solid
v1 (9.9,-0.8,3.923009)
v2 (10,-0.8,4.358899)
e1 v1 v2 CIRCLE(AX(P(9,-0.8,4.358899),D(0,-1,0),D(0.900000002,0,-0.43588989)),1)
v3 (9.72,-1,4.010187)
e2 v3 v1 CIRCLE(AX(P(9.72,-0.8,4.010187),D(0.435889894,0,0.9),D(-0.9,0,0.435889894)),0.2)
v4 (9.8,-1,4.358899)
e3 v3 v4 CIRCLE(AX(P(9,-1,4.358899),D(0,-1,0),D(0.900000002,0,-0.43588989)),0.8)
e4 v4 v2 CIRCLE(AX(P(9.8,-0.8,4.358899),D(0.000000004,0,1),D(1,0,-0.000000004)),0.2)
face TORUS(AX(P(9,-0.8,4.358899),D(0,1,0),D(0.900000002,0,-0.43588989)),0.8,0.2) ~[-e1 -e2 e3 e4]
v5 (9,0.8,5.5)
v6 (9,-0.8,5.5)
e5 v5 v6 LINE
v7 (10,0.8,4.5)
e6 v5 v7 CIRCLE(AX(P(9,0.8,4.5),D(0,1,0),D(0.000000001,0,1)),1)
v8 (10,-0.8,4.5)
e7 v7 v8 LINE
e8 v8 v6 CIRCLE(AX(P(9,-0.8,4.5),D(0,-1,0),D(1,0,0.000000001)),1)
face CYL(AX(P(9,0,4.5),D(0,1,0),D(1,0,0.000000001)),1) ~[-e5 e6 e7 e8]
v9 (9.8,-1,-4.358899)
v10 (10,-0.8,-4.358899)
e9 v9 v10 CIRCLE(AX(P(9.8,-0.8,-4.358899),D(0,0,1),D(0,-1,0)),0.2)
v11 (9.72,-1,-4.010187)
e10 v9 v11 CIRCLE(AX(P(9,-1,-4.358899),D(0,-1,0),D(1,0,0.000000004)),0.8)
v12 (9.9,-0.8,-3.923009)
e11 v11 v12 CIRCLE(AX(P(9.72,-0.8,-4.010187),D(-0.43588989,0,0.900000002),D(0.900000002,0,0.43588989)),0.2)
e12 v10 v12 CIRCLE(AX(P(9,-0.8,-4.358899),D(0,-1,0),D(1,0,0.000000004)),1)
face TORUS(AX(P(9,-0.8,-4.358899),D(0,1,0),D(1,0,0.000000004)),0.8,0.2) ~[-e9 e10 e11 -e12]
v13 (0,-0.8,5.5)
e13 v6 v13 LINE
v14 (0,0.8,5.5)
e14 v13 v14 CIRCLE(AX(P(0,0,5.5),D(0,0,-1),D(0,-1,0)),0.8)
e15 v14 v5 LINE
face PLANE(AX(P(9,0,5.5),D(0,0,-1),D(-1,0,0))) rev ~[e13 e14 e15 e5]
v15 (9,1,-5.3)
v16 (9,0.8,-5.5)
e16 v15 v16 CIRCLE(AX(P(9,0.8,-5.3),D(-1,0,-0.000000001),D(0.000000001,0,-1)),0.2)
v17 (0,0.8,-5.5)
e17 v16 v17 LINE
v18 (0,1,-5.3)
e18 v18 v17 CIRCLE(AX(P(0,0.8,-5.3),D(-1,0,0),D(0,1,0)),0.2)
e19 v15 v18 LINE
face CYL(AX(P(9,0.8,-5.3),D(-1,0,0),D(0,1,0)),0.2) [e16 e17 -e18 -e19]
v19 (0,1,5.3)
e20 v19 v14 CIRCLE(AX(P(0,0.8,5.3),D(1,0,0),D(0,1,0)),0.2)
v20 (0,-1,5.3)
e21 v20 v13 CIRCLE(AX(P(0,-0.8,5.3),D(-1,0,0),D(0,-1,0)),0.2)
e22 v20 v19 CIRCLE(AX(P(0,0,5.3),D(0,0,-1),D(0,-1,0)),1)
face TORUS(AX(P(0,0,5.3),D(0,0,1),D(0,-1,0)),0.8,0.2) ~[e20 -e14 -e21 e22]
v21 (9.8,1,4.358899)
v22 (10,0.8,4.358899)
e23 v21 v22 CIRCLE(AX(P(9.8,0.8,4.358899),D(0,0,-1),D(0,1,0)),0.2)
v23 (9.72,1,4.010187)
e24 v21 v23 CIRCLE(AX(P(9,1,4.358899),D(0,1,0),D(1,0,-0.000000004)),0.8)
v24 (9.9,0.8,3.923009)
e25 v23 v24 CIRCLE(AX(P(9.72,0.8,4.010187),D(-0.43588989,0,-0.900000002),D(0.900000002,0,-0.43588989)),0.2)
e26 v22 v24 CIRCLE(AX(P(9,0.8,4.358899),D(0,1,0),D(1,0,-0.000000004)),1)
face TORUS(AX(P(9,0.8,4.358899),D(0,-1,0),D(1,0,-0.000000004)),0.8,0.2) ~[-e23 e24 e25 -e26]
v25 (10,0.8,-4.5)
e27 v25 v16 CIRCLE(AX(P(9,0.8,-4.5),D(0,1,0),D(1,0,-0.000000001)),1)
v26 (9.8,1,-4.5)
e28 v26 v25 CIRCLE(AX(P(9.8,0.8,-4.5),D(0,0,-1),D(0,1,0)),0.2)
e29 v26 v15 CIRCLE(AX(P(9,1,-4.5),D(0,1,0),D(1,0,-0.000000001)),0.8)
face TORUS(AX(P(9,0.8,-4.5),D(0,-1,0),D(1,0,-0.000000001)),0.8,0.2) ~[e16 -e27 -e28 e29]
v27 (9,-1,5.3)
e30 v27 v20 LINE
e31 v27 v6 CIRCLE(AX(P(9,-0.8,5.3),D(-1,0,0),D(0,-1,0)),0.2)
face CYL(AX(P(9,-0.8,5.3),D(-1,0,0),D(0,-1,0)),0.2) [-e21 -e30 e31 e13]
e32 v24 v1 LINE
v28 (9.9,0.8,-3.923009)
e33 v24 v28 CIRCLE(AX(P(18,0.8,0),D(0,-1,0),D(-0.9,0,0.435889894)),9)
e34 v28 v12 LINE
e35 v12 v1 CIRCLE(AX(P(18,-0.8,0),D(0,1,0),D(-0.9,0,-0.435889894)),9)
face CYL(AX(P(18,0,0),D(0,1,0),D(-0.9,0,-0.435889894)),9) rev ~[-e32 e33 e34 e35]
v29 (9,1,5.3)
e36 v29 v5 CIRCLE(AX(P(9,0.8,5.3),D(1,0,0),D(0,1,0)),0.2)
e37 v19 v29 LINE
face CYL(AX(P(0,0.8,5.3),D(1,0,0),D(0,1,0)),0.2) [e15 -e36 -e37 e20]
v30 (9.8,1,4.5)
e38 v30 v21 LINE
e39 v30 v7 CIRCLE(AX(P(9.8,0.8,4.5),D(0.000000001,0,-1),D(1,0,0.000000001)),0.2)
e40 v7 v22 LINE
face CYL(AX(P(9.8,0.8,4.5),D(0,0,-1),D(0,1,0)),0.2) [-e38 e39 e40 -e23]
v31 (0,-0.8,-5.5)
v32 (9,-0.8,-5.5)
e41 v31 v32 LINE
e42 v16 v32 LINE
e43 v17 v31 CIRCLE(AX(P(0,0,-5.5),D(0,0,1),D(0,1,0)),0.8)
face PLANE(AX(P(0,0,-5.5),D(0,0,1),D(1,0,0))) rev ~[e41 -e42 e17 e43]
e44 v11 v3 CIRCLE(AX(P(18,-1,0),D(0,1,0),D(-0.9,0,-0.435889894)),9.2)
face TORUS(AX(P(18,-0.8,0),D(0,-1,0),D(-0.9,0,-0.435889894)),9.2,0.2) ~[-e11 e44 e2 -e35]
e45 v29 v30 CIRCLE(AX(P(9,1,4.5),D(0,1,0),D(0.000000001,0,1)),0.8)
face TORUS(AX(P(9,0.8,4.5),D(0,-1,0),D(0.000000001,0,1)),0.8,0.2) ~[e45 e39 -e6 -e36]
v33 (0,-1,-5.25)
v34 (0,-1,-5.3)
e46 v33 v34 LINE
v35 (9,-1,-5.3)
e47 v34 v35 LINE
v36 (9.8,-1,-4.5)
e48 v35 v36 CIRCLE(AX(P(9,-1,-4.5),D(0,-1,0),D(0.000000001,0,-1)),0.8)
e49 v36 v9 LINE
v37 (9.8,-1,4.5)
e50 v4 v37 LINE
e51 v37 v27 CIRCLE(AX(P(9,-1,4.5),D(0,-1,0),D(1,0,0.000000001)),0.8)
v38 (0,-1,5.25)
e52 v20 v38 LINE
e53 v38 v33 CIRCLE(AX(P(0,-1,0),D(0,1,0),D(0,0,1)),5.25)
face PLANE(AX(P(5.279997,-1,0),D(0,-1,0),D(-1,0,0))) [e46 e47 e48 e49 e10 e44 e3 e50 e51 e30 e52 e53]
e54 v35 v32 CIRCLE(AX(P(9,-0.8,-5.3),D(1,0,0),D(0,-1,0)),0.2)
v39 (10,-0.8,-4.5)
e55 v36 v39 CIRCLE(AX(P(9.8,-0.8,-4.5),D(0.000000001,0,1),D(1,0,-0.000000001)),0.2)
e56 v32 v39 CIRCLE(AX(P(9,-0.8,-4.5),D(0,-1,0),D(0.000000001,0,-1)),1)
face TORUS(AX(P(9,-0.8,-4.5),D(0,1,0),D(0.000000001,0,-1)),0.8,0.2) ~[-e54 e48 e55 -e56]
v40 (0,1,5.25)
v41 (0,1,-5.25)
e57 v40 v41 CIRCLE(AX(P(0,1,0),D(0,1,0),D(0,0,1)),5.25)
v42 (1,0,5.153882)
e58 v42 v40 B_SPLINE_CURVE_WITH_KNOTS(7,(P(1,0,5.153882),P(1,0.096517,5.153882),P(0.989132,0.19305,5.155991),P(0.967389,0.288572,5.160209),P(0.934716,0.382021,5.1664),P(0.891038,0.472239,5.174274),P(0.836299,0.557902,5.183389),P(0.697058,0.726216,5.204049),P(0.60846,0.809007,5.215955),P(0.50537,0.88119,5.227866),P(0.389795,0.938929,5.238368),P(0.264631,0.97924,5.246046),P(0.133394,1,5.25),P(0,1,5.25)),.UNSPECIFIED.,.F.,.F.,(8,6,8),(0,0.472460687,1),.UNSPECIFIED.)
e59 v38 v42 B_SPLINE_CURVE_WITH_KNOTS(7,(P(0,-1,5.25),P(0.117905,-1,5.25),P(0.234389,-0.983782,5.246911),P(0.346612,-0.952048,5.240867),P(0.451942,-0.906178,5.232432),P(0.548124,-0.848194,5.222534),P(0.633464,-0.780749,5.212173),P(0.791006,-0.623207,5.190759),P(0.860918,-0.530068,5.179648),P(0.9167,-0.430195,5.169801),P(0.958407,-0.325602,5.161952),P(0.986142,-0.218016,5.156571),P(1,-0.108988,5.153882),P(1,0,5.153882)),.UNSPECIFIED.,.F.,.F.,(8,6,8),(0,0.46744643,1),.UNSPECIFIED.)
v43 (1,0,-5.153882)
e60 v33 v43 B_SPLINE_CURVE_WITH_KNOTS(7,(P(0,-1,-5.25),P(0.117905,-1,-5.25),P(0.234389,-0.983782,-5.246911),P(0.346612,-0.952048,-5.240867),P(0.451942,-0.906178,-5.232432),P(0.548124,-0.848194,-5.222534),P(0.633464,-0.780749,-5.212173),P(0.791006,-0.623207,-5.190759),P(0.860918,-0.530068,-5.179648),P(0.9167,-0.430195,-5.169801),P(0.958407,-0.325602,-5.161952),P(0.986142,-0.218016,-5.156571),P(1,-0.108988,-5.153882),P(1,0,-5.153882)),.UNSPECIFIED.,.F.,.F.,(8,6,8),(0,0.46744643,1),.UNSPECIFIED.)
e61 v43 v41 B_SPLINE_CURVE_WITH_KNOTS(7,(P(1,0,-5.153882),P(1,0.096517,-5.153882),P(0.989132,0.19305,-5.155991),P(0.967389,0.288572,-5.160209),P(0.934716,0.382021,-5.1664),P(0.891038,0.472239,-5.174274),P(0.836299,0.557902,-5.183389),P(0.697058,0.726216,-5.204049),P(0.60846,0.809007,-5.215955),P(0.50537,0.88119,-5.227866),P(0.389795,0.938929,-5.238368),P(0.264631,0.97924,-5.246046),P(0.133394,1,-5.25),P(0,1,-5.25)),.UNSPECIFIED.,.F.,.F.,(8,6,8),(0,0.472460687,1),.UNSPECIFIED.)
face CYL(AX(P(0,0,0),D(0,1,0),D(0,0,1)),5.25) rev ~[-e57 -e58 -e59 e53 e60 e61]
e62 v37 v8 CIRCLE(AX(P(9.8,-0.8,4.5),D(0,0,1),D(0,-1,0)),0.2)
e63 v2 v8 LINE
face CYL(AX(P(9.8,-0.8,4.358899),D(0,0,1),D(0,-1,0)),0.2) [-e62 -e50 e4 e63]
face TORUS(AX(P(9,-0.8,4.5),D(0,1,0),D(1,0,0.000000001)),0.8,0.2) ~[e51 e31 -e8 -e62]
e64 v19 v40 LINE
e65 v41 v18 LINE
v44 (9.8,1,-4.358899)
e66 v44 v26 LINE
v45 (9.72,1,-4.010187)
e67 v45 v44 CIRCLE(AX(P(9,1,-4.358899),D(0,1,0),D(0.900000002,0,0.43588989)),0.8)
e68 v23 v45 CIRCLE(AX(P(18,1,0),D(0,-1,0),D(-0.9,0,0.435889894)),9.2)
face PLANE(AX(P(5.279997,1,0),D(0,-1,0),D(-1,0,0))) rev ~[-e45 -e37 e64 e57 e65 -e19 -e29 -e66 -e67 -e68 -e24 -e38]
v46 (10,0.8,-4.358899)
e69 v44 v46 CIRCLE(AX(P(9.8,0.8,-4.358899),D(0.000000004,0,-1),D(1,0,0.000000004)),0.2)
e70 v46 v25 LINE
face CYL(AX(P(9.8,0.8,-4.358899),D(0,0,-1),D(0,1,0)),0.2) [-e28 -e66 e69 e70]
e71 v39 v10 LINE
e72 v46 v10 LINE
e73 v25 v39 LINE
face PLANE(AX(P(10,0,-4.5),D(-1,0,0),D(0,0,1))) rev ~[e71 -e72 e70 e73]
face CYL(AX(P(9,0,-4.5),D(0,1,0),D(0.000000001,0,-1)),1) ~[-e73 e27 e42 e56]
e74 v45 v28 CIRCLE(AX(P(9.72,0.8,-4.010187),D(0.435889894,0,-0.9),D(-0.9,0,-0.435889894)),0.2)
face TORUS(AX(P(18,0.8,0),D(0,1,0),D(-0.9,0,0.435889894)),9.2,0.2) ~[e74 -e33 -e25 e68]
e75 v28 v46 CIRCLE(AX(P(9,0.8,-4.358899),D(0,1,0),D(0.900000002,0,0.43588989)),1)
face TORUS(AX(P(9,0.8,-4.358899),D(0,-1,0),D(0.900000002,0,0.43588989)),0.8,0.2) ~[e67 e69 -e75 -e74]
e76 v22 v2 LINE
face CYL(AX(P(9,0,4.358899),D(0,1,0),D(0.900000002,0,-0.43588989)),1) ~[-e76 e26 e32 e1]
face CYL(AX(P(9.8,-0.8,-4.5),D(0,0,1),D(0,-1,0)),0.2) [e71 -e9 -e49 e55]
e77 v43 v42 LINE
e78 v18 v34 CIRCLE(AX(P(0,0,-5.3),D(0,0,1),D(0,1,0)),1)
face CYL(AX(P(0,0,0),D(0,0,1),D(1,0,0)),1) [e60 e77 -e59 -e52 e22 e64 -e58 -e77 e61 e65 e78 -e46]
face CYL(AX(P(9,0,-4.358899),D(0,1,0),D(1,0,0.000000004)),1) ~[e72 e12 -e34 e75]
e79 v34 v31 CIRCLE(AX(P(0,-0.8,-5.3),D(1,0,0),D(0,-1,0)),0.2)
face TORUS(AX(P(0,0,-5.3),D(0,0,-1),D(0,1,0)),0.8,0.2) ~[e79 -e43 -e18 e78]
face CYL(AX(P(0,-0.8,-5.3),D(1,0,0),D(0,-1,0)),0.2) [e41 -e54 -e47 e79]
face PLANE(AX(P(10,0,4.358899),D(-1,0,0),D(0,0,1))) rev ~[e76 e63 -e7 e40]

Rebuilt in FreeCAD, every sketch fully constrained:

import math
import FreeCAD as App
import Part
import Sketcher
from FreeCAD import Vector
Q = App.Units.Quantity


def edges_at(feature, points):
    """Names of the edges that pass closest to the given points."""
    edges = feature.Shape.Edges
    near = lambda p: min(range(len(edges)), key=lambda i: edges[i].distToShape(Part.Vertex(*p))[0])
    return sorted({f"Edge{near(p) + 1}" for p in points})

doc = App.newDocument("Part")
params = doc.addObject("Spreadsheet::Sheet", "Params")
for row, (alias, value) in enumerate([
    ("sketch1_diameter", "2 mm"),
    ("pad1_length", "11 mm"),
    ("sketch2_radius", "1 mm"),
    ("sketch2_radius2", "9 mm"),
    ("sketch2_width", "9 mm"),
    ("sketch2_radius3", "5.25 mm"),
    ("pad2_length", "2 mm"),
    ("fillet_radius", "0.2 mm"),
], start=1):
    params.set(f"A{row}", alias)
    params.set(f"B{row}", "=" + value)
    params.setAlias(f"B{row}", alias)

body = doc.addObject("PartDesign::Body", "Body")

# Sketch on XY plane
sketch1 = body.newObject("Sketcher::SketchObject", "Sketch")
sketch1.AttachmentSupport = (doc.getObject("XY_Plane"), [""])
sketch1.MapMode = "FlatFace"
sketch1.addGeometry(Part.Circle(Vector(0, 0, 0), Vector(0, 0, 1), 1), False)
sketch1.addConstraint([
    Sketcher.Constraint("Coincident", 0, 3, -1, 1),
    Sketcher.Constraint("Diameter", 0, Q("2 mm")),
])
sketch1.setExpression("Constraints[1]", "Params.sketch1_diameter")
pad1 = body.newObject("PartDesign::Pad", "Pad")
pad1.Profile = sketch1
pad1.setExpression("Length", "Params.pad1_length")
pad1.Midplane = True

# Sketch on XZ plane
sketch2 = body.newObject("Sketcher::SketchObject", "Sketch001")
sketch2.AttachmentSupport = (doc.getObject("XZ_Plane"), [""])
sketch2.MapMode = "FlatFace"
sketch2.addGeometry([
    Part.LineSegment(Vector(9, -5.5, 0), Vector(0, -5.5, 0)),  # 0
    Part.LineSegment(Vector(0, -5.5, 0), Vector(0, -5.25, 0)),  # 1
    Part.ArcOfCircle(Part.Circle(Vector(0, 0, 0), Vector(0, 0, 1), 5.25), math.radians(-90), math.radians(90)),  # 2
    Part.LineSegment(Vector(0, 5.25, 0), Vector(0, 5.5, 0)),  # 3
    Part.LineSegment(Vector(0, 5.5, 0), Vector(9, 5.5, 0)),  # 4
    Part.ArcOfCircle(Part.Circle(Vector(9, 4.5, 0), Vector(0, 0, 1), 1), math.radians(0), math.radians(90)),  # 5
    Part.LineSegment(Vector(10, 4.5, 0), Vector(10, 4.36, 0)),  # 6
    Part.ArcOfCircle(Part.Circle(Vector(9, 4.36, 0), Vector(0, 0, 1), 1), math.radians(-26), math.radians(0)),  # 7
    Part.ArcOfCircle(Part.Circle(Vector(18, 0, 0), Vector(0, 0, 1), 9), math.radians(154), math.radians(206)),  # 8
    Part.ArcOfCircle(Part.Circle(Vector(9, -4.36, 0), Vector(0, 0, 1), 1), math.radians(0), math.radians(26)),  # 9
    Part.LineSegment(Vector(10, -4.36, 0), Vector(10, -4.5, 0)),  # 10
    Part.ArcOfCircle(Part.Circle(Vector(9, -4.5, 0), Vector(0, 0, 1), 1), math.radians(-90), math.radians(0)),  # 11
], False)
sketch2.addConstraint([
    Sketcher.Constraint("Coincident", 0, 2, 1, 1),
    Sketcher.Constraint("Coincident", 1, 2, 2, 1),
    Sketcher.Constraint("Coincident", 2, 2, 3, 1),
    Sketcher.Constraint("Coincident", 3, 2, 4, 1),
    Sketcher.Constraint("Tangent", 4, 2, 5, 2),
    Sketcher.Constraint("Tangent", 5, 1, 6, 1),
    Sketcher.Constraint("Tangent", 6, 2, 7, 2),
    Sketcher.Constraint("Tangent", 7, 1, 8, 1),
    Sketcher.Constraint("Tangent", 8, 2, 9, 2),
    Sketcher.Constraint("Tangent", 9, 1, 10, 1),
    Sketcher.Constraint("Tangent", 10, 2, 11, 2),
    Sketcher.Constraint("Tangent", 11, 1, 0, 1),
    Sketcher.Constraint("Horizontal", 0),
    Sketcher.Constraint("Vertical", 1),
    Sketcher.Constraint("Vertical", 3),
    Sketcher.Constraint("Horizontal", 4),
    Sketcher.Constraint("Vertical", 6),
    Sketcher.Constraint("Vertical", 10),
    Sketcher.Constraint("Coincident", 2, 3, -1, 1),
    Sketcher.Constraint("Equal", 5, 7),
    Sketcher.Constraint("Equal", 7, 9),
    Sketcher.Constraint("Equal", 9, 11),
    Sketcher.Constraint("Symmetric", 0, 2, 3, 2, -1, 1),
    Sketcher.Constraint("Symmetric", 7, 3, 9, 3, -1),
    Sketcher.Constraint("PointOnObject", 0, 2, -2),
    Sketcher.Constraint("Radius", 5, Q("1 mm")),
    Sketcher.Constraint("Radius", 8, Q("9 mm")),
    Sketcher.Constraint("DistanceX", 0, 2, 0, 1, Q("9 mm")),
    Sketcher.Constraint("Radius", 2, Q("5.25 mm")),
    Sketcher.Constraint("DistanceX", -1, 1, 8, 3, Q("18 mm")),
    Sketcher.Constraint("DistanceY", 11, 3, 5, 3, Q("9 mm")),
])
sketch2.setExpression("Constraints[25]", "Params.sketch2_radius")
sketch2.setExpression("Constraints[26]", "Params.sketch2_radius2")
sketch2.setExpression("Constraints[27]", "Params.sketch2_width")
sketch2.setExpression("Constraints[28]", "Params.sketch2_radius3")
pad2 = body.newObject("PartDesign::Pad", "Pad001")
pad2.Profile = sketch2
pad2.setExpression("Length", "Params.pad2_length")
pad2.Midplane = True
doc.recompute()

fillet = body.newObject("PartDesign::Fillet", "Fillet")
fillet.Base = (pad2, edges_at(pad2, [
    (4.5, -1, 5.5),
    (9.707, -1, 5.207),
    (10, -1, 4.429),
    (9.975, -1, 4.135),
    (9, -1, 0),
    (9.975, -1, -4.135),
    (10, -1, -4.429),
    (9.707, -1, -5.207),
    (4.5, -1, -5.5),
    (4.5, 1, 5.5),
    (9.707, 1, 5.207),
    (10, 1, 4.429),
    (9.975, 1, 4.135),
    (9, 1, 0),
    (9.975, 1, -4.135),
    (10, 1, -4.429),
    (-1, 0, -5.5),
    (9.707, 1, -5.207),
    (4.5, 1, -5.5),
    (-1, 0, 5.5),
]))
fillet.setExpression("Radius", "Params.fillet_radius")

doc.recompute()
